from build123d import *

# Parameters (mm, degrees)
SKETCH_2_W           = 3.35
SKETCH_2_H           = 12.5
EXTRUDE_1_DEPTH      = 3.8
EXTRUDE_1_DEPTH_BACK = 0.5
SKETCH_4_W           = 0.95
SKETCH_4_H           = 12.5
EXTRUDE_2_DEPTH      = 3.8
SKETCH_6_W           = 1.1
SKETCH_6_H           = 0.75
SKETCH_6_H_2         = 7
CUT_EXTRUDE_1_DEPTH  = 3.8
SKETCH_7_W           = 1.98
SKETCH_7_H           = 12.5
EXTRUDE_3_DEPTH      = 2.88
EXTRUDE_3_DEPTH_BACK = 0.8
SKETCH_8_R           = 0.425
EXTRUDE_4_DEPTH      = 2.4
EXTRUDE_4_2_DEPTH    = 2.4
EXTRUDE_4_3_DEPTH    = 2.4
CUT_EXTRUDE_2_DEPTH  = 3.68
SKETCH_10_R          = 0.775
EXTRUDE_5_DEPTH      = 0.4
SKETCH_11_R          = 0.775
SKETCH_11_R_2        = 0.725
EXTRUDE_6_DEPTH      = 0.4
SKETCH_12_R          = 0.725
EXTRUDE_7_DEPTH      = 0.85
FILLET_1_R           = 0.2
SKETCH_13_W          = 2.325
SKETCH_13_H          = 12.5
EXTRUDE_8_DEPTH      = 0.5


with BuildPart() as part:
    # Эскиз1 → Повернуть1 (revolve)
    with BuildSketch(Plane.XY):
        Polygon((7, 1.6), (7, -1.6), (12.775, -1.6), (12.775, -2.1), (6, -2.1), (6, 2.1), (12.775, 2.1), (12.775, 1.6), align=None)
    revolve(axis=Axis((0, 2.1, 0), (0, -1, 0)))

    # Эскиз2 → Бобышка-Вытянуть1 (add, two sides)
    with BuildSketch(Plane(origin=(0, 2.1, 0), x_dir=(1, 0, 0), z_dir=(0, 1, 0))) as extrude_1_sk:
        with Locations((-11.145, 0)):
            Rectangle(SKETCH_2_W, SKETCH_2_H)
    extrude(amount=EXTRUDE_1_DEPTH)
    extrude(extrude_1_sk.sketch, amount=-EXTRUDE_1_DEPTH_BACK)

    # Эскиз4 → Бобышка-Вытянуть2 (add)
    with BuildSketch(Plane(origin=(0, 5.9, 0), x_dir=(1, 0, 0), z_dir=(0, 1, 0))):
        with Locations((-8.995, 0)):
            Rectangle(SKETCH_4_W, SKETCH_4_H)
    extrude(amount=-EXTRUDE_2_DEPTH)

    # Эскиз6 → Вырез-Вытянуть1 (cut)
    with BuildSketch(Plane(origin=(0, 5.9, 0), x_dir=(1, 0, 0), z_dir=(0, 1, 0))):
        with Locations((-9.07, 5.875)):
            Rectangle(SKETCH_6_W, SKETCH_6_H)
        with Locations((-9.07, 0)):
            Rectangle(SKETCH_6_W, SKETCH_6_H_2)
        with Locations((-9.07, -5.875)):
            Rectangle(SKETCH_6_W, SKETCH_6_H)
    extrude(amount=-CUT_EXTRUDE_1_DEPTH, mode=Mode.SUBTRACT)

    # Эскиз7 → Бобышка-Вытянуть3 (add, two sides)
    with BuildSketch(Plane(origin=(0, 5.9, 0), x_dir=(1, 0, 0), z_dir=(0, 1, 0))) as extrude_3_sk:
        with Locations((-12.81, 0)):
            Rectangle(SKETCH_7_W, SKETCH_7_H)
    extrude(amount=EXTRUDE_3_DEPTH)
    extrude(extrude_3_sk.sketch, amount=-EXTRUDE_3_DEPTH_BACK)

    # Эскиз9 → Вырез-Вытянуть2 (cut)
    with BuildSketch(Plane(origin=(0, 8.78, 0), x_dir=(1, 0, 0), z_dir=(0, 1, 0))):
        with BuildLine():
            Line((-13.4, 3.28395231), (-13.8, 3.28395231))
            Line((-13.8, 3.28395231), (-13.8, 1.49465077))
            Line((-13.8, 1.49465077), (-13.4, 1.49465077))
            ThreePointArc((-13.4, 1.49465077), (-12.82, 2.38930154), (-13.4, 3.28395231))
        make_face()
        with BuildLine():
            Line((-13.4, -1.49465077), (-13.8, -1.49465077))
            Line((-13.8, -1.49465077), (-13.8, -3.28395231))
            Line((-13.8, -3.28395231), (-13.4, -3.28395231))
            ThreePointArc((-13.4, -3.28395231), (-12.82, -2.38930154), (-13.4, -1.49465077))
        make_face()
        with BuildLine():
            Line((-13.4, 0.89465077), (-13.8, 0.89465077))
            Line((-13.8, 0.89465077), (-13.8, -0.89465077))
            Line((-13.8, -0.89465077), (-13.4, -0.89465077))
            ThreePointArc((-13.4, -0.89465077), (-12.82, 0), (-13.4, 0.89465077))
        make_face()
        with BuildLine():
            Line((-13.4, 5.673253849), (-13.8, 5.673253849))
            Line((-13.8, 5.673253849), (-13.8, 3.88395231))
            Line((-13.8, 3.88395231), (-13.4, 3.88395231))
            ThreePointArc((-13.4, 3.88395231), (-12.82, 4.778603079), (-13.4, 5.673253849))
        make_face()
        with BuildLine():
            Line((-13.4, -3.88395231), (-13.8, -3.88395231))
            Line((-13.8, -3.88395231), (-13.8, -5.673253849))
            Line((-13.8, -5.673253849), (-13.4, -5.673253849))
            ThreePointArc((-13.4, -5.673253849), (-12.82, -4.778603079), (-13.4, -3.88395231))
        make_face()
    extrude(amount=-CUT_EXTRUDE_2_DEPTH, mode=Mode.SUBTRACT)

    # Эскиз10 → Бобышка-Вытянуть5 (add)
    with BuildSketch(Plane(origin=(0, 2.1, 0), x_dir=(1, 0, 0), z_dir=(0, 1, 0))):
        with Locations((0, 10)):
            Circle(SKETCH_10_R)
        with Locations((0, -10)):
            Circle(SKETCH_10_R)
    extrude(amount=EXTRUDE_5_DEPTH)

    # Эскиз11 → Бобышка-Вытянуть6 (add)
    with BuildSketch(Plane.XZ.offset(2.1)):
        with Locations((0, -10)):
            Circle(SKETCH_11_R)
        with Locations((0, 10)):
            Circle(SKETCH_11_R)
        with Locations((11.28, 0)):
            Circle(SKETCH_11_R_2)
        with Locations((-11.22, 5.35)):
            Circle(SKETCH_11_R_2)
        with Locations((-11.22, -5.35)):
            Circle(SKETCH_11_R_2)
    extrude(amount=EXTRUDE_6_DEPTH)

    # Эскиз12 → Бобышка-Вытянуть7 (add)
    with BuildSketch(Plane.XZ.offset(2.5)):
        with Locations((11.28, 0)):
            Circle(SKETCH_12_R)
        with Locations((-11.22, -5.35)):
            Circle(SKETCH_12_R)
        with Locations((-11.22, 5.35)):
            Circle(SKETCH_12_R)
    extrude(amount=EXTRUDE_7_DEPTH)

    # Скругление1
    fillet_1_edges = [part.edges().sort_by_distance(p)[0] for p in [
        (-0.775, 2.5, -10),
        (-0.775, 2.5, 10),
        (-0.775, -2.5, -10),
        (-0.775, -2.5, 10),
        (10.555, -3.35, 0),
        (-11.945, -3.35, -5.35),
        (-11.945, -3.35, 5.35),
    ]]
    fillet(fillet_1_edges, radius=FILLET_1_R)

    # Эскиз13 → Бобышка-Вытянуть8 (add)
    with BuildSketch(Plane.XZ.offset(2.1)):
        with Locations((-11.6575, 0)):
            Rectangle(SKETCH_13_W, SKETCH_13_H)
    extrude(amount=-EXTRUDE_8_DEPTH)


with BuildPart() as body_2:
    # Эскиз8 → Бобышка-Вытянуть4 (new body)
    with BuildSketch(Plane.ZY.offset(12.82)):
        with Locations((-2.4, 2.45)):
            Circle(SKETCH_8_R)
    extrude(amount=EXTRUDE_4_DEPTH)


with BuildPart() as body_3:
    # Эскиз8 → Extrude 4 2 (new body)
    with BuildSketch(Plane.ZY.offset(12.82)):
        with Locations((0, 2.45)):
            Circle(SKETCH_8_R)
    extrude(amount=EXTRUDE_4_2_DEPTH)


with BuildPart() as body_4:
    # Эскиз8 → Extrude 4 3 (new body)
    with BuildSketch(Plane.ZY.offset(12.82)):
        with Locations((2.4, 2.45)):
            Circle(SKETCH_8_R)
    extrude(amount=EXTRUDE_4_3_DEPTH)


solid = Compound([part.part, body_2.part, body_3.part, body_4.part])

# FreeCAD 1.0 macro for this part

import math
import FreeCAD as App
import Part
import Sketcher
from FreeCAD import Vector


def edges_at(feature, points):
    """Names of the edges that pass closest to the given points."""
    edges = feature.Shape.Edges
    near = lambda p: min(range(len(edges)), key=lambda i: edges[i].distToShape(Part.Vertex(*p))[0])
    return sorted({f"Edge{near(p) + 1}" for p in points})


def add_polygon(sketch, points):
    """Adds a closed chain of lines whose ends are joined by coincident constraints."""
    first, n = sketch.GeometryCount, len(points)
    for a, b in zip(points, points[1:] + points[:1]):
        sketch.addGeometry(Part.LineSegment(App.Vector(*a, 0), App.Vector(*b, 0)), False)
    for i in range(n):
        sketch.addConstraint(Sketcher.Constraint("Coincident", first + i, 2, first + (i + 1) % n, 1))

doc = App.newDocument("Part")
params = doc.addObject("Spreadsheet::Sheet", "Params")
for row, (alias, value) in enumerate([
    ("sketch1_height", "3.2 mm"),
    ("sketch1_height2", "0.5 mm"),
    ("revolution_angle", "360 deg"),
    ("sketch2_height", "12.5 mm"),
    ("sketch2_width", "3.35 mm"),
    ("pad1_length", "3.8 mm"),
    ("pad1_length2", "0.5 mm"),
    ("sketch3_height", "12.5 mm"),
    ("sketch3_width", "0.95 mm"),
    ("pad2_length", "3.8 mm"),
    ("sketch4_height", "7 mm"),
    ("sketch4_width", "1.1 mm"),
    ("sketch4_height2", "0.75 mm"),
    ("pocket1_length", "3.8 mm"),
    ("sketch5_height", "12.5 mm"),
    ("sketch5_width", "1.98 mm"),
    ("pad3_length", "2.88 mm"),
    ("pad3_length2", "0.8 mm"),
    ("sketch6_radius", "0.98 mm"),
    ("sketch6_width", "0.4 mm"),
    ("pocket2_length", "3.68 mm"),
    ("sketch7_diameter", "1.55 mm"),
    ("pad4_length", "0.4 mm"),
    ("sketch8_diameter", "1.55 mm"),
    ("sketch8_diameter2", "1.45 mm"),
    ("pad5_length", "0.4 mm"),
    ("sketch9_diameter", "1.45 mm"),
    ("pad6_length", "0.85 mm"),
    ("fillet_radius", "0.2 mm"),
    ("sketch10_height", "12.5 mm"),
    ("pad7_length", "0.5 mm"),
    ("sketch11_diameter", "0.85 mm"),
    ("pad8_length", "2.4 mm"),
    ("sketch12_diameter", "0.85 mm"),
    ("pad9_length", "2.4 mm"),
    ("sketch13_diameter", "0.85 mm"),
    ("pad10_length", "2.4 mm"),
], start=1):
    params.set(f"A{row}", alias)
    params.set(f"B{row}", "=" + value)
    params.setAlias(f"B{row}", alias)

body = doc.addObject("PartDesign::Body", "Body")

# Sketch on XY plane
sketch1 = doc.addObject("Sketcher::SketchObject", "Sketch")
body.addObject(sketch1)
sketch1.AttachmentSupport = (doc.XY_Plane, [""])
sketch1.MapMode = "FlatFace"
add_polygon(sketch1, [(7, -1.6), (7, 1.6), (12.8, 1.6), (12.8, 2.1), (6, 2.1), (6, -2.1), (12.8, -2.1), (12.8, -1.6)])  # lines 0-7
sketch1.addConstraint(Sketcher.Constraint("Vertical", 0))
sketch1.addConstraint(Sketcher.Constraint("Horizontal", 1))
sketch1.addConstraint(Sketcher.Constraint("Vertical", 2))
sketch1.addConstraint(Sketcher.Constraint("Horizontal", 3))
sketch1.addConstraint(Sketcher.Constraint("Vertical", 4))
sketch1.addConstraint(Sketcher.Constraint("Horizontal", 5))
sketch1.addConstraint(Sketcher.Constraint("Vertical", 6))
sketch1.addConstraint(Sketcher.Constraint("Horizontal", 7))
sketch1.addConstraint(Sketcher.Constraint("Symmetric", 2, 2, 5, 2, -1))
sketch1.addConstraint(Sketcher.Constraint("Equal", 2, 6))
sketch1.addConstraint(Sketcher.Constraint("DistanceY", 0, 1, 0, 2, 3.2))
sketch1.addConstraint(Sketcher.Constraint("DistanceY", 2, 1, 2, 2, 0.5))
sketch1.addConstraint(Sketcher.Constraint("DistanceX", -1, 1, 0, 2, 7.0))
sketch1.addConstraint(Sketcher.Constraint("DistanceX", -1, 1, 3, 2, 6.0))
sketch1.addConstraint(Sketcher.Constraint("DistanceX", 1, 1, 1, 2, 5.775))
sketch1.setExpression("Constraints[18]", "Params.sketch1_height")
sketch1.setExpression("Constraints[19]", "Params.sketch1_height2")
revolution = doc.addObject("PartDesign::Revolution", "Revolution")
body.addObject(revolution)
revolution.Profile = sketch1
revolution.ReferenceAxis = (sketch1, ["V_Axis"])
revolution.setExpression("Angle", "Params.revolution_angle")

# Sketch on XZ plane
sketch2 = doc.addObject("Sketcher::SketchObject", "Sketch001")
body.addObject(sketch2)
sketch2.AttachmentSupport = (doc.XZ_Plane, [""])
sketch2.MapMode = "FlatFace"
sketch2.AttachmentOffset = App.Placement(Vector(0, 0, -2.1), App.Rotation())
add_polygon(sketch2, [(-12.8, -6.2), (-12.8, 6.2), (-9.5, 6.2), (-9.5, -6.2)])  # lines 0-3
sketch2.addConstraint(Sketcher.Constraint("Vertical", 0))
sketch2.addConstraint(Sketcher.Constraint("Horizontal", 1))
sketch2.addConstraint(Sketcher.Constraint("Vertical", 2))
sketch2.addConstraint(Sketcher.Constraint("Horizontal", 3))
sketch2.addConstraint(Sketcher.Constraint("DistanceY", 0, 1, 0, 2, 12.5))
sketch2.addConstraint(Sketcher.Constraint("DistanceX", 1, 1, 1, 2, 3.35))
sketch2.addConstraint(Sketcher.Constraint("DistanceX", 0, 2, -1, 1, 12.82))
sketch2.addConstraint(Sketcher.Constraint("DistanceY", -1, 1, 0, 2, 6.25))
sketch2.setExpression("Constraints[8]", "Params.sketch2_height")
sketch2.setExpression("Constraints[9]", "Params.sketch2_width")
pad1 = doc.addObject("PartDesign::Pad", "Pad")
body.addObject(pad1)
pad1.Profile = sketch2
pad1.Type = "TwoLengths"
pad1.setExpression("Length", "Params.pad1_length")
pad1.setExpression("Length2", "Params.pad1_length2")
pad1.Reversed = True

# Sketch on XZ plane
sketch3 = doc.addObject("Sketcher::SketchObject", "Sketch002")
body.addObject(sketch3)
sketch3.AttachmentSupport = (doc.XZ_Plane, [""])
sketch3.MapMode = "FlatFace"
sketch3.AttachmentOffset = App.Placement(Vector(0, 0, -5.9), App.Rotation())
add_polygon(sketch3, [(-9.5, -6.2), (-9.5, 6.2), (-8.5, 6.2), (-8.5, -6.2)])  # lines 0-3
sketch3.addConstraint(Sketcher.Constraint("Vertical", 0))
sketch3.addConstraint(Sketcher.Constraint("Horizontal", 1))
sketch3.addConstraint(Sketcher.Constraint("Vertical", 2))
sketch3.addConstraint(Sketcher.Constraint("Horizontal", 3))
sketch3.addConstraint(Sketcher.Constraint("DistanceY", 0, 1, 0, 2, 12.5))
sketch3.addConstraint(Sketcher.Constraint("DistanceX", 1, 1, 1, 2, 0.95))
sketch3.addConstraint(Sketcher.Constraint("DistanceX", 0, 2, -1, 1, 9.47))
sketch3.addConstraint(Sketcher.Constraint("DistanceY", -1, 1, 0, 2, 6.25))
sketch3.setExpression("Constraints[8]", "Params.sketch3_height")
sketch3.setExpression("Constraints[9]", "Params.sketch3_width")
pad2 = doc.addObject("PartDesign::Pad", "Pad001")
body.addObject(pad2)
pad2.Profile = sketch3
pad2.setExpression("Length", "Params.pad2_length")

# Sketch on XZ plane
sketch4 = doc.addObject("Sketcher::SketchObject", "Sketch003")
body.addObject(sketch4)
sketch4.AttachmentSupport = (doc.XZ_Plane, [""])
sketch4.MapMode = "FlatFace"
sketch4.AttachmentOffset = App.Placement(Vector(0, 0, -5.9), App.Rotation())
add_polygon(sketch4, [(-9.6, -6.2), (-9.6, -5.5), (-8.5, -5.5), (-8.5, -6.2)])  # lines 0-3
add_polygon(sketch4, [(-9.6, -3.5), (-9.6, 3.5), (-8.5, 3.5), (-8.5, -3.5)])  # lines 4-7
add_polygon(sketch4, [(-9.6, 5.5), (-9.6, 6.2), (-8.5, 6.2), (-8.5, 5.5)])  # lines 8-11
sketch4.addConstraint(Sketcher.Constraint("Vertical", 0))
sketch4.addConstraint(Sketcher.Constraint("Horizontal", 1))
sketch4.addConstraint(Sketcher.Constraint("Vertical", 2))
sketch4.addConstraint(Sketcher.Constraint("Horizontal", 3))
sketch4.addConstraint(Sketcher.Constraint("Vertical", 4))
sketch4.addConstraint(Sketcher.Constraint("Horizontal", 5))
sketch4.addConstraint(Sketcher.Constraint("Vertical", 6))
sketch4.addConstraint(Sketcher.Constraint("Horizontal", 7))
sketch4.addConstraint(Sketcher.Constraint("Vertical", 8))
sketch4.addConstraint(Sketcher.Constraint("Horizontal", 9))
sketch4.addConstraint(Sketcher.Constraint("Vertical", 10))
sketch4.addConstraint(Sketcher.Constraint("Horizontal", 11))
sketch4.addConstraint(Sketcher.Constraint("Symmetric", 3, 2, 8, 2, -1))
sketch4.addConstraint(Sketcher.Constraint("Symmetric", 1, 2, 10, 2, -1))
sketch4.addConstraint(Sketcher.Constraint("Vertical", 3, 2, 4, 2))
sketch4.addConstraint(Sketcher.Constraint("Vertical", 2, 2, 5, 2))
sketch4.addConstraint(Sketcher.Constraint("DistanceY", 4, 1, 4, 2, 7.0))
sketch4.addConstraint(Sketcher.Constraint("DistanceX", 1, 1, 1, 2, 1.1))
sketch4.addConstraint(Sketcher.Constraint("DistanceY", 0, 2, 4, 2, 9.0))
sketch4.addConstraint(Sketcher.Constraint("DistanceY", 5, 2, 10, 2, 2.0))
sketch4.addConstraint(Sketcher.Constraint("DistanceY", 0, 1, 0, 2, 0.75))
sketch4.addConstraint(Sketcher.Constraint("DistanceX", 0, 2, -1, 1, 9.62))
sketch4.setExpression("Constraints[28]", "Params.sketch4_height")
sketch4.setExpression("Constraints[29]", "Params.sketch4_width")
sketch4.setExpression("Constraints[32]", "Params.sketch4_height2")
pocket1 = doc.addObject("PartDesign::Pocket", "Pocket")
body.addObject(pocket1)
pocket1.Profile = sketch4
pocket1.setExpression("Length", "Params.pocket1_length")
pocket1.Reversed = True

# Sketch on XZ plane
sketch5 = doc.addObject("Sketcher::SketchObject", "Sketch004")
body.addObject(sketch5)
sketch5.AttachmentSupport = (doc.XZ_Plane, [""])
sketch5.MapMode = "FlatFace"
sketch5.AttachmentOffset = App.Placement(Vector(0, 0, -5.9), App.Rotation())
add_polygon(sketch5, [(-13.8, -6.2), (-13.8, 6.2), (-11.8, 6.2), (-11.8, -6.2)])  # lines 0-3
sketch5.addConstraint(Sketcher.Constraint("Vertical", 0))
sketch5.addConstraint(Sketcher.Constraint("Horizontal", 1))
sketch5.addConstraint(Sketcher.Constraint("Vertical", 2))
sketch5.addConstraint(Sketcher.Constraint("Horizontal", 3))
sketch5.addConstraint(Sketcher.Constraint("DistanceY", 0, 1, 0, 2, 12.5))
sketch5.addConstraint(Sketcher.Constraint("DistanceX", 1, 1, 1, 2, 1.98))
sketch5.addConstraint(Sketcher.Constraint("DistanceX", 0, 2, -1, 1, 13.8))
sketch5.addConstraint(Sketcher.Constraint("DistanceY", -1, 1, 0, 2, 6.25))
sketch5.setExpression("Constraints[8]", "Params.sketch5_height")
sketch5.setExpression("Constraints[9]", "Params.sketch5_width")
pad3 = doc.addObject("PartDesign::Pad", "Pad002")
body.addObject(pad3)
pad3.Profile = sketch5
pad3.Type = "TwoLengths"
pad3.setExpression("Length", "Params.pad3_length")
pad3.setExpression("Length2", "Params.pad3_length2")
pad3.Reversed = True

# Sketch on XZ plane
sketch6 = doc.addObject("Sketcher::SketchObject", "Sketch005")
body.addObject(sketch6)
sketch6.AttachmentSupport = (doc.XZ_Plane, [""])
sketch6.MapMode = "FlatFace"
sketch6.AttachmentOffset = App.Placement(Vector(0, 0, -8.78), App.Rotation())
sketch6.addGeometry(Part.LineSegment(Vector(-13.4, -3.28, 0), Vector(-13.8, -3.28, 0)), False)
sketch6.addGeometry(Part.LineSegment(Vector(-13.8, -3.28, 0), Vector(-13.8, -1.49, 0)), False)
sketch6.addGeometry(Part.LineSegment(Vector(-13.8, -1.49, 0), Vector(-13.4, -1.49, 0)), False)
sketch6.addGeometry(Part.ArcOfCircle(Part.Circle(Vector(-13.8, -2.39, 0), Vector(0, 0, 1), 0.98), math.radians(-66), math.radians(66)), False)
sketch6.addGeometry(Part.LineSegment(Vector(-13.4, 1.49, 0), Vector(-13.8, 1.49, 0)), False)
sketch6.addGeometry(Part.LineSegment(Vector(-13.8, 1.49, 0), Vector(-13.8, 3.28, 0)), False)
sketch6.addGeometry(Part.LineSegment(Vector(-13.8, 3.28, 0), Vector(-13.4, 3.28, 0)), False)
sketch6.addGeometry(Part.ArcOfCircle(Part.Circle(Vector(-13.8, 2.39, 0), Vector(0, 0, 1), 0.98), math.radians(-66), math.radians(66)), False)
sketch6.addGeometry(Part.LineSegment(Vector(-13.4, -0.89, 0), Vector(-13.8, -0.89, 0)), False)
sketch6.addGeometry(Part.LineSegment(Vector(-13.8, -0.89, 0), Vector(-13.8, 0.89, 0)), False)
sketch6.addGeometry(Part.LineSegment(Vector(-13.8, 0.89, 0), Vector(-13.4, 0.89, 0)), False)
sketch6.addGeometry(Part.ArcOfCircle(Part.Circle(Vector(-13.8, 0, 0), Vector(0, 0, 1), 0.98), math.radians(-66), math.radians(66)), False)
sketch6.addGeometry(Part.LineSegment(Vector(-13.4, -5.67, 0), Vector(-13.8, -5.67, 0)), False)
sketch6.addGeometry(Part.LineSegment(Vector(-13.8, -5.67, 0), Vector(-13.8, -3.88, 0)), False)
sketch6.addGeometry(Part.LineSegment(Vector(-13.8, -3.88, 0), Vector(-13.4, -3.88, 0)), False)
sketch6.addGeometry(Part.ArcOfCircle(Part.Circle(Vector(-13.8, -4.78, 0), Vector(0, 0, 1), 0.98), math.radians(-66), math.radians(66)), False)
sketch6.addGeometry(Part.LineSegment(Vector(-13.4, 3.88, 0), Vector(-13.8, 3.88, 0)), False)
sketch6.addGeometry(Part.LineSegment(Vector(-13.8, 3.88, 0), Vector(-13.8, 5.67, 0)), False)
sketch6.addGeometry(Part.LineSegment(Vector(-13.8, 5.67, 0), Vector(-13.4, 5.67, 0)), False)
sketch6.addGeometry(Part.ArcOfCircle(Part.Circle(Vector(-13.8, 4.78, 0), Vector(0, 0, 1), 0.98), math.radians(-66), math.radians(66)), False)
sketch6.addConstraint(Sketcher.Constraint("Coincident", 0, 2, 1, 1))
sketch6.addConstraint(Sketcher.Constraint("Coincident", 1, 2, 2, 1))
sketch6.addConstraint(Sketcher.Constraint("Coincident", 2, 2, 3, 2))
sketch6.addConstraint(Sketcher.Constraint("Coincident", 3, 1, 0, 1))
sketch6.addConstraint(Sketcher.Constraint("Coincident", 4, 2, 5, 1))
sketch6.addConstraint(Sketcher.Constraint("Coincident", 5, 2, 6, 1))
sketch6.addConstraint(Sketcher.Constraint("Coincident", 6, 2, 7, 2))
sketch6.addConstraint(Sketcher.Constraint("Coincident", 7, 1, 4, 1))
sketch6.addConstraint(Sketcher.Constraint("Coincident", 8, 2, 9, 1))
sketch6.addConstraint(Sketcher.Constraint("Coincident", 9, 2, 10, 1))
sketch6.addConstraint(Sketcher.Constraint("Coincident", 10, 2, 11, 2))
sketch6.addConstraint(Sketcher.Constraint("Coincident", 11, 1, 8, 1))
sketch6.addConstraint(Sketcher.Constraint("Coincident", 12, 2, 13, 1))
sketch6.addConstraint(Sketcher.Constraint("Coincident", 13, 2, 14, 1))
sketch6.addConstraint(Sketcher.Constraint("Coincident", 14, 2, 15, 2))
sketch6.addConstraint(Sketcher.Constraint("Coincident", 15, 1, 12, 1))
sketch6.addConstraint(Sketcher.Constraint("Coincident", 16, 2, 17, 1))
sketch6.addConstraint(Sketcher.Constraint("Coincident", 17, 2, 18, 1))
sketch6.addConstraint(Sketcher.Constraint("Coincident", 18, 2, 19, 2))
sketch6.addConstraint(Sketcher.Constraint("Coincident", 19, 1, 16, 1))
sketch6.addConstraint(Sketcher.Constraint("Horizontal", 0))
sketch6.addConstraint(Sketcher.Constraint("Vertical", 1))
sketch6.addConstraint(Sketcher.Constraint("Horizontal", 2))
sketch6.addConstraint(Sketcher.Constraint("Horizontal", 4))
sketch6.addConstraint(Sketcher.Constraint("Vertical", 5))
sketch6.addConstraint(Sketcher.Constraint("Horizontal", 6))
sketch6.addConstraint(Sketcher.Constraint("Horizontal", 8))
sketch6.addConstraint(Sketcher.Constraint("Vertical", 9))
sketch6.addConstraint(Sketcher.Constraint("Horizontal", 10))
sketch6.addConstraint(Sketcher.Constraint("Horizontal", 12))
sketch6.addConstraint(Sketcher.Constraint("Vertical", 13))
sketch6.addConstraint(Sketcher.Constraint("Horizontal", 14))
sketch6.addConstraint(Sketcher.Constraint("Horizontal", 16))
sketch6.addConstraint(Sketcher.Constraint("Vertical", 17))
sketch6.addConstraint(Sketcher.Constraint("Horizontal", 18))
sketch6.addConstraint(Sketcher.Constraint("Equal", 3, 7))
sketch6.addConstraint(Sketcher.Constraint("Equal", 7, 11))
sketch6.addConstraint(Sketcher.Constraint("Equal", 11, 15))
sketch6.addConstraint(Sketcher.Constraint("Equal", 15, 19))
sketch6.addConstraint(Sketcher.Constraint("Symmetric", 3, 3, 7, 3, -1))
sketch6.addConstraint(Sketcher.Constraint("Symmetric", 15, 3, 19, 3, -1))
sketch6.addConstraint(Sketcher.Constraint("Symmetric", 1, 2, 4, 2, -1))
sketch6.addConstraint(Sketcher.Constraint("Symmetric", 10, 2, 11, 1, -1))
sketch6.addConstraint(Sketcher.Constraint("Symmetric", 13, 2, 16, 2, -1))
sketch6.addConstraint(Sketcher.Constraint("Vertical", 7, 3, 11, 3))
sketch6.addConstraint(Sketcher.Constraint("Vertical", 11, 3, 15, 3))
sketch6.addConstraint(Sketcher.Constraint("Vertical", 19, 3, 0, 2))
sketch6.addConstraint(Sketcher.Constraint("Vertical", 2, 2, 3, 1))
sketch6.addConstraint(Sketcher.Constraint("Vertical", 3, 1, 6, 2))
sketch6.addConstraint(Sketcher.Constraint("Vertical", 5, 2, 8, 2))
sketch6.addConstraint(Sketcher.Constraint("Vertical", 7, 1, 10, 2))
sketch6.addConstraint(Sketcher.Constraint("Vertical", 9, 2, 12, 2))
sketch6.addConstraint(Sketcher.Constraint("Vertical", 11, 1, 14, 2))
sketch6.addConstraint(Sketcher.Constraint("Vertical", 14, 2, 15, 1))
sketch6.addConstraint(Sketcher.Constraint("Vertical", 15, 1, 18, 2))
sketch6.addConstraint(Sketcher.Constraint("Radius", 3, 0.98))
sketch6.addConstraint(Sketcher.Constraint("DistanceX", 0, 2, 0, 1, 0.4))
sketch6.addConstraint(Sketcher.Constraint("DistanceX", 3, 3, -1, 1, 13.8))
sketch6.addConstraint(Sketcher.Constraint("DistanceY", 1, 2, 8, 2, 0.6))
sketch6.addConstraint(Sketcher.Constraint("DistanceY", 13, 2, 0, 2, 0.6))
sketch6.setExpression("Constraints[55]", "Params.sketch6_radius")
sketch6.setExpression("Constraints[56]", "Params.sketch6_width")
pocket2 = doc.addObject("PartDesign::Pocket", "Pocket001")
body.addObject(pocket2)
pocket2.Profile = sketch6
pocket2.setExpression("Length", "Params.pocket2_length")
pocket2.Reversed = True

# Sketch on XZ plane
sketch7 = doc.addObject("Sketcher::SketchObject", "Sketch006")
body.addObject(sketch7)
sketch7.AttachmentSupport = (doc.XZ_Plane, [""])
sketch7.MapMode = "FlatFace"
sketch7.AttachmentOffset = App.Placement(Vector(0, 0, -2.1), App.Rotation())
sketch7.addGeometry(Part.Circle(Vector(0, -10, 0), Vector(0, 0, 1), 0.8), False)
sketch7.addGeometry(Part.Circle(Vector(0, 10, 0), Vector(0, 0, 1), 0.8), False)
sketch7.addConstraint(Sketcher.Constraint("Equal", 0, 1))
sketch7.addConstraint(Sketcher.Constraint("Symmetric", 0, 3, 1, 3, -1, 1))
sketch7.addConstraint(Sketcher.Constraint("PointOnObject", 0, 3, -2))
sketch7.addConstraint(Sketcher.Constraint("Diameter", 0, 1.55))
sketch7.addConstraint(Sketcher.Constraint("DistanceY", 0, 3, -1, 1, 10.0))
sketch7.setExpression("Constraints[3]", "Params.sketch7_diameter")
pad4 = doc.addObject("PartDesign::Pad", "Pad003")
body.addObject(pad4)
pad4.Profile = sketch7
pad4.setExpression("Length", "Params.pad4_length")
pad4.Reversed = True

# Sketch on XZ plane
sketch8 = doc.addObject("Sketcher::SketchObject", "Sketch007")
body.addObject(sketch8)
sketch8.AttachmentSupport = (doc.XZ_Plane, [""])
sketch8.MapMode = "FlatFace"
sketch8.AttachmentOffset = App.Placement(Vector(0, 0, 2.1), App.Rotation())
sketch8.addGeometry(Part.Circle(Vector(0, -10, 0), Vector(0, 0, 1), 0.8), False)
sketch8.addGeometry(Part.Circle(Vector(0, 10, 0), Vector(0, 0, 1), 0.8), False)
sketch8.addGeometry(Part.Circle(Vector(11.3, 0, 0), Vector(0, 0, 1), 0.7), False)
sketch8.addGeometry(Part.Circle(Vector(-11.2, 5.3, 0), Vector(0, 0, 1), 0.7), False)
sketch8.addGeometry(Part.Circle(Vector(-11.2, -5.3, 0), Vector(0, 0, 1), 0.7), False)
sketch8.addConstraint(Sketcher.Constraint("Equal", 0, 1))
sketch8.addConstraint(Sketcher.Constraint("Equal", 2, 3))
sketch8.addConstraint(Sketcher.Constraint("Equal", 3, 4))
sketch8.addConstraint(Sketcher.Constraint("Symmetric", 0, 3, 1, 3, -1, 1))
sketch8.addConstraint(Sketcher.Constraint("Symmetric", 3, 3, 4, 3, -1))
sketch8.addConstraint(Sketcher.Constraint("PointOnObject", 0, 3, -2))
sketch8.addConstraint(Sketcher.Constraint("PointOnObject", 2, 3, -1))
sketch8.addConstraint(Sketcher.Constraint("Diameter", 0, 1.55))
sketch8.addConstraint(Sketcher.Constraint("Diameter", 2, 1.45))
sketch8.addConstraint(Sketcher.Constraint("DistanceY", 0, 3, -1, 1, 10.0))
sketch8.addConstraint(Sketcher.Constraint("DistanceX", 3, 3, 2, 3, 22.5))
sketch8.addConstraint(Sketcher.Constraint("DistanceY", 4, 3, 3, 3, 10.7))
sketch8.addConstraint(Sketcher.Constraint("DistanceX", -1, 1, 2, 3, 11.28))
sketch8.setExpression("Constraints[7]", "Params.sketch8_diameter")
sketch8.setExpression("Constraints[8]", "Params.sketch8_diameter2")
pad5 = doc.addObject("PartDesign::Pad", "Pad004")
body.addObject(pad5)
pad5.Profile = sketch8
pad5.setExpression("Length", "Params.pad5_length")

# Sketch on XZ plane
sketch9 = doc.addObject("Sketcher::SketchObject", "Sketch008")
body.addObject(sketch9)
sketch9.AttachmentSupport = (doc.XZ_Plane, [""])
sketch9.MapMode = "FlatFace"
sketch9.AttachmentOffset = App.Placement(Vector(0, 0, 2.5), App.Rotation())
sketch9.addGeometry(Part.Circle(Vector(11.3, 0, 0), Vector(0, 0, 1), 0.7), False)
sketch9.addGeometry(Part.Circle(Vector(-11.2, -5.3, 0), Vector(0, 0, 1), 0.7), False)
sketch9.addGeometry(Part.Circle(Vector(-11.2, 5.3, 0), Vector(0, 0, 1), 0.7), False)
sketch9.addConstraint(Sketcher.Constraint("Equal", 0, 1))
sketch9.addConstraint(Sketcher.Constraint("Equal", 1, 2))
sketch9.addConstraint(Sketcher.Constraint("Symmetric", 1, 3, 2, 3, -1))
sketch9.addConstraint(Sketcher.Constraint("PointOnObject", 0, 3, -1))
sketch9.addConstraint(Sketcher.Constraint("Diameter", 0, 1.45))
sketch9.addConstraint(Sketcher.Constraint("DistanceX", 1, 3, 0, 3, 22.5))
sketch9.addConstraint(Sketcher.Constraint("DistanceY", 1, 3, 2, 3, 10.7))
sketch9.addConstraint(Sketcher.Constraint("DistanceX", -1, 1, 0, 3, 11.28))
sketch9.setExpression("Constraints[4]", "Params.sketch9_diameter")
pad6 = doc.addObject("PartDesign::Pad", "Pad005")
body.addObject(pad6)
pad6.Profile = sketch9
pad6.setExpression("Length", "Params.pad6_length")
doc.recompute()

fillet = doc.addObject("PartDesign::Fillet", "Fillet")
body.addObject(fillet)
fillet.Base = (pad6, edges_at(pad6, [
    (-0.775, 2.5, -10),
    (-0.775, 2.5, 10),
    (-0.775, -2.5, -10),
    (-0.775, -2.5, 10),
    (10.555, -3.35, 0),
    (-11.945, -3.35, -5.35),
    (-11.945, -3.35, 5.35),
]))
fillet.setExpression("Radius", "Params.fillet_radius")

# Sketch on XZ plane
sketch10 = doc.addObject("Sketcher::SketchObject", "Sketch009")
body.addObject(sketch10)
sketch10.AttachmentSupport = (doc.XZ_Plane, [""])
sketch10.MapMode = "FlatFace"
sketch10.AttachmentOffset = App.Placement(Vector(0, 0, 2.1), App.Rotation())
add_polygon(sketch10, [(-12.8, 6.2), (-12.8, -6.2), (-10.5, -6.2), (-10.5, 6.2)])  # lines 0-3
sketch10.addConstraint(Sketcher.Constraint("Vertical", 0))
sketch10.addConstraint(Sketcher.Constraint("Horizontal", 1))
sketch10.addConstraint(Sketcher.Constraint("Vertical", 2))
sketch10.addConstraint(Sketcher.Constraint("Horizontal", 3))
sketch10.addConstraint(Sketcher.Constraint("DistanceY", 0, 2, 0, 1, 12.5))
sketch10.addConstraint(Sketcher.Constraint("DistanceX", 1, 1, 1, 2, 2.325))
sketch10.addConstraint(Sketcher.Constraint("DistanceX", 0, 2, -1, 1, 12.82))
sketch10.addConstraint(Sketcher.Constraint("DistanceY", 0, 2, -1, 1, 6.25))
sketch10.setExpression("Constraints[8]", "Params.sketch10_height")
pad7 = doc.addObject("PartDesign::Pad", "Pad006")
body.addObject(pad7)
pad7.Profile = sketch10
pad7.setExpression("Length", "Params.pad7_length")
pad7.Reversed = True
body2 = doc.addObject("PartDesign::Body", "Body001")

# Sketch on YZ plane
sketch11 = doc.addObject("Sketcher::SketchObject", "Sketch010")
body2.addObject(sketch11)
sketch11.AttachmentSupport = (doc.getObject("YZ_Plane001"), [""])
sketch11.MapMode = "FlatFace"
sketch11.AttachmentOffset = App.Placement(Vector(0, 0, -12.82), App.Rotation())
sketch11.addGeometry(Part.Circle(Vector(2.45, -2.4, 0), Vector(0, 0, 1), 0.42), False)
sketch11.addConstraint(Sketcher.Constraint("Diameter", 0, 0.85))
sketch11.addConstraint(Sketcher.Constraint("DistanceY", 0, 3, -1, 1, 2.4))
sketch11.addConstraint(Sketcher.Constraint("DistanceX", -1, 1, 0, 3, 2.45))
sketch11.setExpression("Constraints[0]", "Params.sketch11_diameter")
pad8 = doc.addObject("PartDesign::Pad", "Pad007")
body2.addObject(pad8)
pad8.Profile = sketch11
pad8.setExpression("Length", "Params.pad8_length")
pad8.Reversed = True
body3 = doc.addObject("PartDesign::Body", "Body002")

# Sketch on YZ plane
sketch12 = doc.addObject("Sketcher::SketchObject", "Sketch011")
body3.addObject(sketch12)
sketch12.AttachmentSupport = (doc.getObject("YZ_Plane002"), [""])
sketch12.MapMode = "FlatFace"
sketch12.AttachmentOffset = App.Placement(Vector(0, 0, -12.82), App.Rotation())
sketch12.addGeometry(Part.Circle(Vector(2.45, 0, 0), Vector(0, 0, 1), 0.42), False)
sketch12.addConstraint(Sketcher.Constraint("PointOnObject", 0, 3, -1))
sketch12.addConstraint(Sketcher.Constraint("Diameter", 0, 0.85))
sketch12.addConstraint(Sketcher.Constraint("DistanceX", -1, 1, 0, 3, 2.45))
sketch12.setExpression("Constraints[1]", "Params.sketch12_diameter")
pad9 = doc.addObject("PartDesign::Pad", "Pad008")
body3.addObject(pad9)
pad9.Profile = sketch12
pad9.setExpression("Length", "Params.pad9_length")
pad9.Reversed = True
body4 = doc.addObject("PartDesign::Body", "Body003")

# Sketch on YZ plane
sketch13 = doc.addObject("Sketcher::SketchObject", "Sketch012")
body4.addObject(sketch13)
sketch13.AttachmentSupport = (doc.getObject("YZ_Plane003"), [""])
sketch13.MapMode = "FlatFace"
sketch13.AttachmentOffset = App.Placement(Vector(0, 0, -12.82), App.Rotation())
sketch13.addGeometry(Part.Circle(Vector(2.45, 2.4, 0), Vector(0, 0, 1), 0.42), False)
sketch13.addConstraint(Sketcher.Constraint("Diameter", 0, 0.85))
sketch13.addConstraint(Sketcher.Constraint("DistanceY", -1, 1, 0, 3, 2.4))
sketch13.addConstraint(Sketcher.Constraint("DistanceX", -1, 1, 0, 3, 2.45))
sketch13.setExpression("Constraints[0]", "Params.sketch13_diameter")
pad10 = doc.addObject("PartDesign::Pad", "Pad009")
body4.addObject(pad10)
pad10.Profile = sketch13
pad10.setExpression("Length", "Params.pad10_length")
pad10.Reversed = True

doc.recompute()
